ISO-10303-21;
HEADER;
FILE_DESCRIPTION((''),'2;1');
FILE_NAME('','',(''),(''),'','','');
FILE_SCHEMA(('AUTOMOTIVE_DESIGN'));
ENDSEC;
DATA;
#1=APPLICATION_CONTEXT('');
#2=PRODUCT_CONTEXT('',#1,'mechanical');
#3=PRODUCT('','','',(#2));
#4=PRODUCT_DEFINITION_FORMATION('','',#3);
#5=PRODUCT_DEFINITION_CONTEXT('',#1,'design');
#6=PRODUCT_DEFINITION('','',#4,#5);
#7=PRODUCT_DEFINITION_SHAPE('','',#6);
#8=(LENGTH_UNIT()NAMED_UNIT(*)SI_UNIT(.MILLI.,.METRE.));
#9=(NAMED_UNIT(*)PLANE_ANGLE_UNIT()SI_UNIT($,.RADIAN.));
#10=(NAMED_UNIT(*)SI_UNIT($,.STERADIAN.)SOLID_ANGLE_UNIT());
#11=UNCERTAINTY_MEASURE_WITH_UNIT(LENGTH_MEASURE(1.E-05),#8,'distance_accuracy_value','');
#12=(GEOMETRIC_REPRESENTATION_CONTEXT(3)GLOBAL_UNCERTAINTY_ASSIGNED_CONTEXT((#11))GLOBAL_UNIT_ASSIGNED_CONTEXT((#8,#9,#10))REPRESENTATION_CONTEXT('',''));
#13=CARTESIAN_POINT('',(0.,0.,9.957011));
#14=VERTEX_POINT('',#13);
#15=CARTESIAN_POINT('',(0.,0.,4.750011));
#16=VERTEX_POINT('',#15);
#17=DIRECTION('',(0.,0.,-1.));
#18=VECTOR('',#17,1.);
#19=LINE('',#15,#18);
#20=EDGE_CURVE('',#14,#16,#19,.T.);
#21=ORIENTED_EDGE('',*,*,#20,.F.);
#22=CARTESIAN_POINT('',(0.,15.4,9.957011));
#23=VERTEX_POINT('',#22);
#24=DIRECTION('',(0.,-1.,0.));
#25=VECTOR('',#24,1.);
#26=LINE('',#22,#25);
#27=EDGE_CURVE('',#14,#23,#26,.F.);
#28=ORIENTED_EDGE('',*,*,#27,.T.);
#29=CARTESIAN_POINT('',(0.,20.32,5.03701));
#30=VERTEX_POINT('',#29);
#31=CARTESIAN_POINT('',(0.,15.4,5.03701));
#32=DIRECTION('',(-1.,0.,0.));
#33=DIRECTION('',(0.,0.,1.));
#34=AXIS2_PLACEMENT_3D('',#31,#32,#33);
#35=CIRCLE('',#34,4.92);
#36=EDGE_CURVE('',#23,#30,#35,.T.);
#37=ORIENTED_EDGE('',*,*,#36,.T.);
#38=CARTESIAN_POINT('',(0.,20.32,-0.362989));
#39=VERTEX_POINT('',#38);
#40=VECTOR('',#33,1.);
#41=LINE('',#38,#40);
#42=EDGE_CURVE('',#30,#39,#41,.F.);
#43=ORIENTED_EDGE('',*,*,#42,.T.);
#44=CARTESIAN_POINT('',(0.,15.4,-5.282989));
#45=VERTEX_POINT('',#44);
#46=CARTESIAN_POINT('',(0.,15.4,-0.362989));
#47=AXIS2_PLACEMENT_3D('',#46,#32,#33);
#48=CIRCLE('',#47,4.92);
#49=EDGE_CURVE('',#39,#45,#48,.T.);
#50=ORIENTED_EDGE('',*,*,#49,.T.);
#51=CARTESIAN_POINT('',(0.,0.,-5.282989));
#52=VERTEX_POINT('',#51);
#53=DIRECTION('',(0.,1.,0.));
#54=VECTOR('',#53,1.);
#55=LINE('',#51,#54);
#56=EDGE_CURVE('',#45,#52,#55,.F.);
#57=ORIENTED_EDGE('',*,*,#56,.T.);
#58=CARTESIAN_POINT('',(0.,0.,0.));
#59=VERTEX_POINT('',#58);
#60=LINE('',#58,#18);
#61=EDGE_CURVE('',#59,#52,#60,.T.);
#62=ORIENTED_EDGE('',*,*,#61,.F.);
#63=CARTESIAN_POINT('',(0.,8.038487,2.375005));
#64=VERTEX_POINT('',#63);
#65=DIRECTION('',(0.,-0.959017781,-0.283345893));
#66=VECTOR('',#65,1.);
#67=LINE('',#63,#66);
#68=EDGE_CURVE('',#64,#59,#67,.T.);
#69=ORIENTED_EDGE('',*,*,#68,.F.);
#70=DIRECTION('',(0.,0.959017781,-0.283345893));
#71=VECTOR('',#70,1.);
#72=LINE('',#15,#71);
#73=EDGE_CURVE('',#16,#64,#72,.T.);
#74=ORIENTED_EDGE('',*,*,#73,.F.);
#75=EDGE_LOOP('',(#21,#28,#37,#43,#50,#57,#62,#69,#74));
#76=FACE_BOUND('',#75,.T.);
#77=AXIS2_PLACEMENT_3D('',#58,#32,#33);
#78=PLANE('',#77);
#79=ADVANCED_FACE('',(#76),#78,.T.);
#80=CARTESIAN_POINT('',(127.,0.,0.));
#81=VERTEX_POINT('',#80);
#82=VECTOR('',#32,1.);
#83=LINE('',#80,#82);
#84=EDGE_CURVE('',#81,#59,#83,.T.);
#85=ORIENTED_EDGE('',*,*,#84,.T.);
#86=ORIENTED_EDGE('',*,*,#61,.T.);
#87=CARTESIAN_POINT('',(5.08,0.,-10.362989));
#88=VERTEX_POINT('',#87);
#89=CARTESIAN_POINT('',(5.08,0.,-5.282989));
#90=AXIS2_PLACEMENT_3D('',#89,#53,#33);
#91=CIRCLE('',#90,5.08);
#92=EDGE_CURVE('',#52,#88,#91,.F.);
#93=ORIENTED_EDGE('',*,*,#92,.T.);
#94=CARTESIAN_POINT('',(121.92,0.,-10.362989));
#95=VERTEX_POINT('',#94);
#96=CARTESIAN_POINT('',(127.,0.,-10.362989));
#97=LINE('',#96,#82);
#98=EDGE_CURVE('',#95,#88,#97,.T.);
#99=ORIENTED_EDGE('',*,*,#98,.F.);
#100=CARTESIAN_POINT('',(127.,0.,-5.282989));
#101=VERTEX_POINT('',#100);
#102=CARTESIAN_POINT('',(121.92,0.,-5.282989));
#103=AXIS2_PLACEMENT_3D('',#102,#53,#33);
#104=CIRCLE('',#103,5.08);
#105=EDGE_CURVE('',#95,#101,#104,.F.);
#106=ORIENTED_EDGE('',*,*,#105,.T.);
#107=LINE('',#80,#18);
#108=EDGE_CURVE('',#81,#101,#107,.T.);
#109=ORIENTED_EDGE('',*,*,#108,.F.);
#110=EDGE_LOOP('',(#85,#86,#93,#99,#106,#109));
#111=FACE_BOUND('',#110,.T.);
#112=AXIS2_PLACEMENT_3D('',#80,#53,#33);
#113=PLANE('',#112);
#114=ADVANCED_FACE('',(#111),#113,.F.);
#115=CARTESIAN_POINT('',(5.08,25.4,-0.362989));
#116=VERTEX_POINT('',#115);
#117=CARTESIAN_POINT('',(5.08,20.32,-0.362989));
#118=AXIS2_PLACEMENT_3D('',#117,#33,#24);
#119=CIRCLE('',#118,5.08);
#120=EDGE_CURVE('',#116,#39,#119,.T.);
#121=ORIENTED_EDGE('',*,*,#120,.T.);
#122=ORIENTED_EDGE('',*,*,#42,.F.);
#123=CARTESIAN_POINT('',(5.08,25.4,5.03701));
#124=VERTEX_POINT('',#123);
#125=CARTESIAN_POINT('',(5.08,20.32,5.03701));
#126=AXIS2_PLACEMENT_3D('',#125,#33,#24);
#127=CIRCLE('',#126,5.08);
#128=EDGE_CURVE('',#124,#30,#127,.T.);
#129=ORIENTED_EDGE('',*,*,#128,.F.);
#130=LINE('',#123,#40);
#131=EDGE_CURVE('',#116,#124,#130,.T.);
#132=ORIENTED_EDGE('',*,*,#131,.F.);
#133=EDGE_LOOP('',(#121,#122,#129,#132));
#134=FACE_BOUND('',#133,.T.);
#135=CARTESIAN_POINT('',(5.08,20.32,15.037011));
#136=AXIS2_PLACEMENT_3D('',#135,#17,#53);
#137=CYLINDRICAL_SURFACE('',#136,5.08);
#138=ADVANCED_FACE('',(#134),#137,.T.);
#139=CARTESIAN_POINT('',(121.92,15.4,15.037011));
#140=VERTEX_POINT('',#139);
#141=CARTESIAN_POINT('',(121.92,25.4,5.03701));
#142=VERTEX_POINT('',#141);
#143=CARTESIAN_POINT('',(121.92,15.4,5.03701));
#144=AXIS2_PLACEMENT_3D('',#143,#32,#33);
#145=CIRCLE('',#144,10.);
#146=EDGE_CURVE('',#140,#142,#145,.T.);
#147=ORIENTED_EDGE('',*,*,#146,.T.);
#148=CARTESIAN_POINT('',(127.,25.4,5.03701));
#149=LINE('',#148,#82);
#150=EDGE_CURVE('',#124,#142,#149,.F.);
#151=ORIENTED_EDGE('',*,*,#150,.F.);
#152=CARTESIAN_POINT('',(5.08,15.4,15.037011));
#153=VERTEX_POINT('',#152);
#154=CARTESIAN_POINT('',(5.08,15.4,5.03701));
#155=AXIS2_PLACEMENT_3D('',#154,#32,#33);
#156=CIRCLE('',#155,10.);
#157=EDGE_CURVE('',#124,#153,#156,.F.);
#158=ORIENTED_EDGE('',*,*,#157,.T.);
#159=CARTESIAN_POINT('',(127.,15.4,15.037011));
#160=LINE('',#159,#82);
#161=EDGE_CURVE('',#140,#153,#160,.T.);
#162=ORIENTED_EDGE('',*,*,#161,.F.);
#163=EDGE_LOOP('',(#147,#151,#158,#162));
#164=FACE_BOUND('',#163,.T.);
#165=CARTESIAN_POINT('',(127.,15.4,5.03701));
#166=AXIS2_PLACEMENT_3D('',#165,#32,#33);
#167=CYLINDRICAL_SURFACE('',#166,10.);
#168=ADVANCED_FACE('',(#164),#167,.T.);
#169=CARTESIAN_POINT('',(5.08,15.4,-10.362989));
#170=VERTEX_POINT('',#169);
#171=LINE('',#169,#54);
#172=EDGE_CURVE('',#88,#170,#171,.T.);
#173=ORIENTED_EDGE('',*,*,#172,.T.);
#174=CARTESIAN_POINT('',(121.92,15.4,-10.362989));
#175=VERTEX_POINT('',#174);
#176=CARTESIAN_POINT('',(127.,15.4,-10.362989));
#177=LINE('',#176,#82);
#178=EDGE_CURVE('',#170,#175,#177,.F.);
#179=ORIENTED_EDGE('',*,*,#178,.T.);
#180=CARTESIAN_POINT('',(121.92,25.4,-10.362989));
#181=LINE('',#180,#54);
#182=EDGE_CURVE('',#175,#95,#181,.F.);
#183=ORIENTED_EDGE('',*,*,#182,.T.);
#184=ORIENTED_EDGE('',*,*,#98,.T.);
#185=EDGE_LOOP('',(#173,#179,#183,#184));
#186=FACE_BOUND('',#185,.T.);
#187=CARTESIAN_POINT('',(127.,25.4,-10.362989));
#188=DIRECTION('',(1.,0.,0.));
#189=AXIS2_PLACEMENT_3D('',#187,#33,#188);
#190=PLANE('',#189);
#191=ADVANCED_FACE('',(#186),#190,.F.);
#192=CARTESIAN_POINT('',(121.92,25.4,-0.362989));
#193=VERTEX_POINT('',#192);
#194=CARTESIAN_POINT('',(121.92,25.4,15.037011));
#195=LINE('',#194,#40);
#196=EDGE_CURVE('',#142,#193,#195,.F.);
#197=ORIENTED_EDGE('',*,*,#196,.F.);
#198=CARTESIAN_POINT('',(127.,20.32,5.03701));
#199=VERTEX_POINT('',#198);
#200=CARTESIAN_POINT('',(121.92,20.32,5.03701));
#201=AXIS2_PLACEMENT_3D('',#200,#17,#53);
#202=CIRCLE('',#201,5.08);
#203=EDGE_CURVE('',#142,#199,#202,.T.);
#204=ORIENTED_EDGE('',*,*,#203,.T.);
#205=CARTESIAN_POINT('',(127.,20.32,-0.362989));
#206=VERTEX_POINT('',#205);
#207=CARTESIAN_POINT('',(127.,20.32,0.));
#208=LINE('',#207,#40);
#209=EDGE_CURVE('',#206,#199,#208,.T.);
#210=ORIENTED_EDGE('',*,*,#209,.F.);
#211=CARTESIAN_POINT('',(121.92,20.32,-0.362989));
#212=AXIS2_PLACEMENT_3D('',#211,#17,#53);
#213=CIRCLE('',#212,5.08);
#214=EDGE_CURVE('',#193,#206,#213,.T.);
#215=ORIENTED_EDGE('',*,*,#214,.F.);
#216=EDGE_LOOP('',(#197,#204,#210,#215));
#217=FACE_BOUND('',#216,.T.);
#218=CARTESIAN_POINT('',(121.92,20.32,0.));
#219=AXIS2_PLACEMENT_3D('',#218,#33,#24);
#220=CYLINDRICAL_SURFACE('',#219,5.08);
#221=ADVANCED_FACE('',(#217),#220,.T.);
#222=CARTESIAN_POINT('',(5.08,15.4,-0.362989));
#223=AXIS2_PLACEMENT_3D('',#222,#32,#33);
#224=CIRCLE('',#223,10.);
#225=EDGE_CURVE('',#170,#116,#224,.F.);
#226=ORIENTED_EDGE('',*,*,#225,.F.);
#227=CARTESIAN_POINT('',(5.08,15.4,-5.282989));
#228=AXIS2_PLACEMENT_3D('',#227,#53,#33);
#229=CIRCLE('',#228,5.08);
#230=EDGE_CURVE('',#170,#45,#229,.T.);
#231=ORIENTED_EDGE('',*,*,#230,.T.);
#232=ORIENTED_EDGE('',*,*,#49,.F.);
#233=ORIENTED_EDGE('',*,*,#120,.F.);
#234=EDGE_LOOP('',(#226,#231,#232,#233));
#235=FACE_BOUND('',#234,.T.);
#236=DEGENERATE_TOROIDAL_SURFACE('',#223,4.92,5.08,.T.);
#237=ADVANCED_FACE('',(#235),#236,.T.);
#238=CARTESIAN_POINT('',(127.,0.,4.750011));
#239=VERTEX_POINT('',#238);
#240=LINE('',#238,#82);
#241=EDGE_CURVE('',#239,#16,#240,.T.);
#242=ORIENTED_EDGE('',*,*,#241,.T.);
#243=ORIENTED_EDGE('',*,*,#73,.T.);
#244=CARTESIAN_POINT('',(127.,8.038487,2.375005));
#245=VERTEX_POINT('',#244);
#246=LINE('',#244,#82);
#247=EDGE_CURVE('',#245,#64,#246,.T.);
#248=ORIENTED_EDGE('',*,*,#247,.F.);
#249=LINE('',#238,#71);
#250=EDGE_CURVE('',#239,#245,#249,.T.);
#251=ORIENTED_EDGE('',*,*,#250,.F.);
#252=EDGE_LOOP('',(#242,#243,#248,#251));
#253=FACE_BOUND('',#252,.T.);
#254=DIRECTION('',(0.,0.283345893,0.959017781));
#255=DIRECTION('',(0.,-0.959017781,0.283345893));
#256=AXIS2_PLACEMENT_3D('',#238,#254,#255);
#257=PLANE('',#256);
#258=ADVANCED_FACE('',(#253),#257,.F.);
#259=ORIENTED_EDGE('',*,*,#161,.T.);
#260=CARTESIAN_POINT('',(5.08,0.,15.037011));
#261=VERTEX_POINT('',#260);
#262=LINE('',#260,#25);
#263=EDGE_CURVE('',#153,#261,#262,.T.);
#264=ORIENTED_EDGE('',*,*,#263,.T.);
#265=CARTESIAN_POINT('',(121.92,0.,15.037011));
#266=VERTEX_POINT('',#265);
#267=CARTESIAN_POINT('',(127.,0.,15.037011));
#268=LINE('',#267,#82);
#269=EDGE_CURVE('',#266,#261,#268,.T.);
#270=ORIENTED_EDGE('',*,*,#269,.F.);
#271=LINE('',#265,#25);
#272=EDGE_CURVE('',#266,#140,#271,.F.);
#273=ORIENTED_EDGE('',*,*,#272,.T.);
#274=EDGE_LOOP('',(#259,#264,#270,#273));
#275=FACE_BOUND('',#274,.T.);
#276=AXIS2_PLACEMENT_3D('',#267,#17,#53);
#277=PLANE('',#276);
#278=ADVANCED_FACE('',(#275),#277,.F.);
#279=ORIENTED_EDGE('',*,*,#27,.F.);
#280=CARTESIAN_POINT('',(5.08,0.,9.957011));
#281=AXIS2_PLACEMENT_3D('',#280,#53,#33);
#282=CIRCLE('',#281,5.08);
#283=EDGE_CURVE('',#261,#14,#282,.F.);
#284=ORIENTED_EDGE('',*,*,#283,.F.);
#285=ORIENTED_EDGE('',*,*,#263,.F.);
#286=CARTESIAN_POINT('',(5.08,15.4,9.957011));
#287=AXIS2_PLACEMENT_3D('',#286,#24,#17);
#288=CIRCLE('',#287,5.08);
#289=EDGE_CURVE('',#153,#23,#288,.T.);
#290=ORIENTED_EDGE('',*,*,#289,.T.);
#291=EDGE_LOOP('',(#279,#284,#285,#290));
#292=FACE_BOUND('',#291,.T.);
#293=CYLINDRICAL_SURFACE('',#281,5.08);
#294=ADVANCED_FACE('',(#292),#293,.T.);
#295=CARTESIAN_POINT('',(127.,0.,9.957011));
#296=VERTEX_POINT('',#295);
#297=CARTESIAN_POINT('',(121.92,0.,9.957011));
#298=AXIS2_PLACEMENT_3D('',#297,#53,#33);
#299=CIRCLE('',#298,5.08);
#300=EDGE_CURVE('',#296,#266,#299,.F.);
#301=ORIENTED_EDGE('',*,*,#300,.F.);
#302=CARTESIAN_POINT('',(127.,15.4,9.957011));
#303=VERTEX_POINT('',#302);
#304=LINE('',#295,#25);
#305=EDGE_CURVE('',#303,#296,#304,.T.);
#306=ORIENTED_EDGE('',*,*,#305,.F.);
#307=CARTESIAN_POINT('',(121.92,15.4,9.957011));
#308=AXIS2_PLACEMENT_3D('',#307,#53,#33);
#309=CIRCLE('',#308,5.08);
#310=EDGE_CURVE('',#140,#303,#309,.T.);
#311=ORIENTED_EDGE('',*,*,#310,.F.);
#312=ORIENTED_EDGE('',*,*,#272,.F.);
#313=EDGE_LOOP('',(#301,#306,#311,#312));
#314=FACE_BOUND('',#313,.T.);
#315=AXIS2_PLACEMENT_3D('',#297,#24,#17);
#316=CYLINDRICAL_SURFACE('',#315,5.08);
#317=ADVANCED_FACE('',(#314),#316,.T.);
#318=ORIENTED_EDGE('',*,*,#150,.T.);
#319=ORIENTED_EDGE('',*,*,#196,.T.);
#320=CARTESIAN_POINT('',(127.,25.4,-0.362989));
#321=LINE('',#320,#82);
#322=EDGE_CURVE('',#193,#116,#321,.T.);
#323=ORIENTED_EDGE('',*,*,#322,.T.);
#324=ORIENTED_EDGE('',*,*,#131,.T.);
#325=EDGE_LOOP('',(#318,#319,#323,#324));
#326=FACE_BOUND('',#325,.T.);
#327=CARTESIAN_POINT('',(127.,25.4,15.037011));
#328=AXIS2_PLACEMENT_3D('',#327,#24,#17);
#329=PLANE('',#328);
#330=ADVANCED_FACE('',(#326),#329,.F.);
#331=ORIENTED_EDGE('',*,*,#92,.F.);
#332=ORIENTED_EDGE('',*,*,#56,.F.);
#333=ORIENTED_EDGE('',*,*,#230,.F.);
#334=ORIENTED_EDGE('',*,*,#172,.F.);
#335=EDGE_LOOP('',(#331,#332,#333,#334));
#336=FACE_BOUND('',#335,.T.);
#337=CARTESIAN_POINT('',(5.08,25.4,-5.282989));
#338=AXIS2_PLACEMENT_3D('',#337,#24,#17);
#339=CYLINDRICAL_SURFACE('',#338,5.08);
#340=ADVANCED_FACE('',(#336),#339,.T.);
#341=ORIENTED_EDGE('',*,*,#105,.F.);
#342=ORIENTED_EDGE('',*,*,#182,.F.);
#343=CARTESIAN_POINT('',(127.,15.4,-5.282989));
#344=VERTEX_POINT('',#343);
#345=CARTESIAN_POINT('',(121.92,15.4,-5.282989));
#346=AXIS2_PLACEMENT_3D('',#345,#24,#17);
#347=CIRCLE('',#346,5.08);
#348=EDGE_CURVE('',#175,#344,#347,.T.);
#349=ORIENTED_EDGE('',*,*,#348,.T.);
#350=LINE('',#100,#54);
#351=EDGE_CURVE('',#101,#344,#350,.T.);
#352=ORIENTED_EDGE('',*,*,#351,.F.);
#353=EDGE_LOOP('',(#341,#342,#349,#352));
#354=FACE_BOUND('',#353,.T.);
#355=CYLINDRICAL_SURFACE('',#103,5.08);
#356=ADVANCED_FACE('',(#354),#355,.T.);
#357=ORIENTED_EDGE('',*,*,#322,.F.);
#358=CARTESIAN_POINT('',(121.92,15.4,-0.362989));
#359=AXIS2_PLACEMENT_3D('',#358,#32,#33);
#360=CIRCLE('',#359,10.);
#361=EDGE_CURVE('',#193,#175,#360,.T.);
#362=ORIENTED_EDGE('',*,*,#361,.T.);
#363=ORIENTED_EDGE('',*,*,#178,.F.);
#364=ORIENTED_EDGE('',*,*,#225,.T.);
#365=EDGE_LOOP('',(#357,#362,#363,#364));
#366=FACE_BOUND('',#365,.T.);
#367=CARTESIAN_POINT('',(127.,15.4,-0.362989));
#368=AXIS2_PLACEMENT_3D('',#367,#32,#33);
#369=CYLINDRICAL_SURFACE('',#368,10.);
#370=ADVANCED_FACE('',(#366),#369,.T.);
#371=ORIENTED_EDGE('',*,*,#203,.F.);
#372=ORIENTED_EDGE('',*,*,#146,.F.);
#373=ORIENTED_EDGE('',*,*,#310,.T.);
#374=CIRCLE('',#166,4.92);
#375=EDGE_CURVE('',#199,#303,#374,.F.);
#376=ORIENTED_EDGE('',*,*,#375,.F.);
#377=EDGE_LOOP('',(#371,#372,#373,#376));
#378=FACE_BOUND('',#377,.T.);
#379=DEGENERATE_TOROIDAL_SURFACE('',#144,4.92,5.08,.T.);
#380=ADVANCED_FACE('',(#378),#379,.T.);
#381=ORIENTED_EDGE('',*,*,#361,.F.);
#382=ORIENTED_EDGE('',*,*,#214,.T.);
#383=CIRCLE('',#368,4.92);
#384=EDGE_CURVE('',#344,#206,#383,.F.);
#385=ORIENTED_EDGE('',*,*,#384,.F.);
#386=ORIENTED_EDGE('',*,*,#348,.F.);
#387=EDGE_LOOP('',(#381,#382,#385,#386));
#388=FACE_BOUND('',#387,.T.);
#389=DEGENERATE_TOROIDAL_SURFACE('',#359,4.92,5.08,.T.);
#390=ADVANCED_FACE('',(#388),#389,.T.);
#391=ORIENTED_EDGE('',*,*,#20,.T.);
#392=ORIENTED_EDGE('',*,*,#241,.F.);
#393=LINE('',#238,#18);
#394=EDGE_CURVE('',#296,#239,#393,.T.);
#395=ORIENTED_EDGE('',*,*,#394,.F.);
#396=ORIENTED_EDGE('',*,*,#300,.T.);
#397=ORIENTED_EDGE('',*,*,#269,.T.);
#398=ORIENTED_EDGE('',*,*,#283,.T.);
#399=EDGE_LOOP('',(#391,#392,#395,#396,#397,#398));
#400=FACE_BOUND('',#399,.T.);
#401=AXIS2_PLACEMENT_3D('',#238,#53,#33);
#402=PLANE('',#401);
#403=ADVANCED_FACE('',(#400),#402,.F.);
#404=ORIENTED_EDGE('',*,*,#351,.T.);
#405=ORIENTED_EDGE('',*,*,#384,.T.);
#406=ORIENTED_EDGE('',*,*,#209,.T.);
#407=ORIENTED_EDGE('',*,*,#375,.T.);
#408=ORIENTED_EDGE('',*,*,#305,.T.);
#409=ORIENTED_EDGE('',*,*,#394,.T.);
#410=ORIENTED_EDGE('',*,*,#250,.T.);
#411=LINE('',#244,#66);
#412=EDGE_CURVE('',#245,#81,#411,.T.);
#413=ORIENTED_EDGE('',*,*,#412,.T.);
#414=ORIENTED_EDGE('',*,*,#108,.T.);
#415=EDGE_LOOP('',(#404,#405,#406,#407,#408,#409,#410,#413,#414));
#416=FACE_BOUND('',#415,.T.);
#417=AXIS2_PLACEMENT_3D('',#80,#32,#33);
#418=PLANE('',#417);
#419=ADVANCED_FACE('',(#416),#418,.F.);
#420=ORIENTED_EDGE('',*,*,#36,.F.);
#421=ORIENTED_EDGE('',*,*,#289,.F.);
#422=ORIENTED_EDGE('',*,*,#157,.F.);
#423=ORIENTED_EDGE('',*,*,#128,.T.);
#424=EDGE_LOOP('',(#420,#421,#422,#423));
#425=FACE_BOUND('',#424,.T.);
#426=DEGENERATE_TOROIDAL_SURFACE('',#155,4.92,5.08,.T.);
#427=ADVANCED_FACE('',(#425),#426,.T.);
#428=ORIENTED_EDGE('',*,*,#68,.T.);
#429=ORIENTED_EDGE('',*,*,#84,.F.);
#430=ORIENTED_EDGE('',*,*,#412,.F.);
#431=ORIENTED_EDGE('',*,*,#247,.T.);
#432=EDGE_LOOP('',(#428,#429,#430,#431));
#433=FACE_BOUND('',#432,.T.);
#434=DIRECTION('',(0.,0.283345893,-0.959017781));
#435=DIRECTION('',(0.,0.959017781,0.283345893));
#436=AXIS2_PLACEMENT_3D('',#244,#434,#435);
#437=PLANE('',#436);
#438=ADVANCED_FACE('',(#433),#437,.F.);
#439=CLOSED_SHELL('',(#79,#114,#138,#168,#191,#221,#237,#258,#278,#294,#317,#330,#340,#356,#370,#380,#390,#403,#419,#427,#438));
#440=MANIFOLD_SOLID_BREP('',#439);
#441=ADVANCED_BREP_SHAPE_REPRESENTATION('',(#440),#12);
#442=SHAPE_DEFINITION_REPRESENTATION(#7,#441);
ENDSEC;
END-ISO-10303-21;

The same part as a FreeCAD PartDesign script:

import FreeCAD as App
import Part
import Sketcher
Q = App.Units.Quantity


def edges_at(feature, points):
    """Names of the edges that pass closest to the given points."""
    edges = feature.Shape.Edges
    near = lambda p: min(range(len(edges)), key=lambda i: edges[i].distToShape(Part.Vertex(*p))[0])
    return sorted({f"Edge{near(p) + 1}" for p in points})


def add_polygon(sketch, points):
    """Adds a closed chain of lines whose ends are joined by coincident constraints."""
    first, n = sketch.GeometryCount, len(points)
    for a, b in zip(points, points[1:] + points[:1]):
        sketch.addGeometry(Part.LineSegment(App.Vector(*a, 0), App.Vector(*b, 0)), False)
    for i in range(n):
        sketch.addConstraint(Sketcher.Constraint("Coincident", first + i, 2, first + (i + 1) % n, 1))

doc = App.newDocument("Part")
params = doc.addObject("Spreadsheet::Sheet", "Params")
for row, (alias, value) in enumerate([
    ("sketch1_width", "1 in"),
    ("sketch1_length", "0.33 in"),
    ("sketch1_height", "0.405 in"),
    ("pad1_length", "5 in"),
    ("fillet_radius", "10 mm"),
    ("fillet2_radius", "0.2 in"),
], start=1):
    params.set(f"A{row}", alias)
    params.set(f"B{row}", "=" + value)
    params.setAlias(f"B{row}", alias)

body = doc.addObject("PartDesign::Body", "Body")

sketch1 = body.newObject("Sketcher::SketchObject", "Sketch")
sketch1.AttachmentSupport = (doc.getObject("YZ_Plane"), [""])
sketch1.MapMode = "FlatFace"
add_polygon(sketch1, [(0, 5), (8, 2), (0, 0), (0, -10), (25, -10), (25, 15), (0, 15)])
sketch1.addConstraint([
    Sketcher.Constraint("Vertical", 2),
    Sketcher.Constraint("Horizontal", 3),
    Sketcher.Constraint("Vertical", 4),
    Sketcher.Constraint("Horizontal", 5),
    Sketcher.Constraint("Vertical", 6),
    Sketcher.Constraint("Coincident", 1, 2, -1, 1),
    Sketcher.Constraint("PointOnObject", 5, 2, -2),
    Sketcher.Constraint("Equal", 5, 4),
    Sketcher.Constraint("Equal", 0, 1),
    Sketcher.Constraint("DistanceX", 3, 1, 3, 2, Q("1 in")),
    Sketcher.Constraint("Distance", 0, Q("0.33 in")),
    Sketcher.Constraint("DistanceY", 6, 2, 6, 1, Q("0.405 in")),
    Sketcher.Constraint("Angle", 0, Q("-16.46 deg")),
])
sketch1.setExpression("Constraints[16]", "Params.sketch1_width")
sketch1.setExpression("Constraints[17]", "Params.sketch1_length")
sketch1.setExpression("Constraints[18]", "Params.sketch1_height")
pad1 = body.newObject("PartDesign::Pad", "Pad")
pad1.Profile = sketch1
pad1.setExpression("Length", "Params.pad1_length")
doc.recompute()

fillet = body.newObject("PartDesign::Fillet", "Fillet")
fillet.Base = (pad1, edges_at(pad1, [(63.5, 25.4, 15.037), (63.5, 25.4, -10.363)]))
fillet.setExpression("Radius", "Params.fillet_radius")
doc.recompute()

fillet2 = body.newObject("PartDesign::Fillet", "Fillet001")
fillet2.Base = (fillet, edges_at(fillet, [
    (0, 7.7, 15.037),
    (127, 7.7, 15.037),
    (0, 25.4, 2.337),
    (0, 22.471, -7.434),
    (0, 22.471, 12.108),
    (127, 25.4, 2.337),
    (127, 22.471, -7.434),
    (127, 22.471, 12.108),
    (127, 7.7, -10.363),
    (0, 7.7, -10.363),
]))
fillet2.setExpression("Radius", "Params.fillet2_radius")

doc.recompute()
